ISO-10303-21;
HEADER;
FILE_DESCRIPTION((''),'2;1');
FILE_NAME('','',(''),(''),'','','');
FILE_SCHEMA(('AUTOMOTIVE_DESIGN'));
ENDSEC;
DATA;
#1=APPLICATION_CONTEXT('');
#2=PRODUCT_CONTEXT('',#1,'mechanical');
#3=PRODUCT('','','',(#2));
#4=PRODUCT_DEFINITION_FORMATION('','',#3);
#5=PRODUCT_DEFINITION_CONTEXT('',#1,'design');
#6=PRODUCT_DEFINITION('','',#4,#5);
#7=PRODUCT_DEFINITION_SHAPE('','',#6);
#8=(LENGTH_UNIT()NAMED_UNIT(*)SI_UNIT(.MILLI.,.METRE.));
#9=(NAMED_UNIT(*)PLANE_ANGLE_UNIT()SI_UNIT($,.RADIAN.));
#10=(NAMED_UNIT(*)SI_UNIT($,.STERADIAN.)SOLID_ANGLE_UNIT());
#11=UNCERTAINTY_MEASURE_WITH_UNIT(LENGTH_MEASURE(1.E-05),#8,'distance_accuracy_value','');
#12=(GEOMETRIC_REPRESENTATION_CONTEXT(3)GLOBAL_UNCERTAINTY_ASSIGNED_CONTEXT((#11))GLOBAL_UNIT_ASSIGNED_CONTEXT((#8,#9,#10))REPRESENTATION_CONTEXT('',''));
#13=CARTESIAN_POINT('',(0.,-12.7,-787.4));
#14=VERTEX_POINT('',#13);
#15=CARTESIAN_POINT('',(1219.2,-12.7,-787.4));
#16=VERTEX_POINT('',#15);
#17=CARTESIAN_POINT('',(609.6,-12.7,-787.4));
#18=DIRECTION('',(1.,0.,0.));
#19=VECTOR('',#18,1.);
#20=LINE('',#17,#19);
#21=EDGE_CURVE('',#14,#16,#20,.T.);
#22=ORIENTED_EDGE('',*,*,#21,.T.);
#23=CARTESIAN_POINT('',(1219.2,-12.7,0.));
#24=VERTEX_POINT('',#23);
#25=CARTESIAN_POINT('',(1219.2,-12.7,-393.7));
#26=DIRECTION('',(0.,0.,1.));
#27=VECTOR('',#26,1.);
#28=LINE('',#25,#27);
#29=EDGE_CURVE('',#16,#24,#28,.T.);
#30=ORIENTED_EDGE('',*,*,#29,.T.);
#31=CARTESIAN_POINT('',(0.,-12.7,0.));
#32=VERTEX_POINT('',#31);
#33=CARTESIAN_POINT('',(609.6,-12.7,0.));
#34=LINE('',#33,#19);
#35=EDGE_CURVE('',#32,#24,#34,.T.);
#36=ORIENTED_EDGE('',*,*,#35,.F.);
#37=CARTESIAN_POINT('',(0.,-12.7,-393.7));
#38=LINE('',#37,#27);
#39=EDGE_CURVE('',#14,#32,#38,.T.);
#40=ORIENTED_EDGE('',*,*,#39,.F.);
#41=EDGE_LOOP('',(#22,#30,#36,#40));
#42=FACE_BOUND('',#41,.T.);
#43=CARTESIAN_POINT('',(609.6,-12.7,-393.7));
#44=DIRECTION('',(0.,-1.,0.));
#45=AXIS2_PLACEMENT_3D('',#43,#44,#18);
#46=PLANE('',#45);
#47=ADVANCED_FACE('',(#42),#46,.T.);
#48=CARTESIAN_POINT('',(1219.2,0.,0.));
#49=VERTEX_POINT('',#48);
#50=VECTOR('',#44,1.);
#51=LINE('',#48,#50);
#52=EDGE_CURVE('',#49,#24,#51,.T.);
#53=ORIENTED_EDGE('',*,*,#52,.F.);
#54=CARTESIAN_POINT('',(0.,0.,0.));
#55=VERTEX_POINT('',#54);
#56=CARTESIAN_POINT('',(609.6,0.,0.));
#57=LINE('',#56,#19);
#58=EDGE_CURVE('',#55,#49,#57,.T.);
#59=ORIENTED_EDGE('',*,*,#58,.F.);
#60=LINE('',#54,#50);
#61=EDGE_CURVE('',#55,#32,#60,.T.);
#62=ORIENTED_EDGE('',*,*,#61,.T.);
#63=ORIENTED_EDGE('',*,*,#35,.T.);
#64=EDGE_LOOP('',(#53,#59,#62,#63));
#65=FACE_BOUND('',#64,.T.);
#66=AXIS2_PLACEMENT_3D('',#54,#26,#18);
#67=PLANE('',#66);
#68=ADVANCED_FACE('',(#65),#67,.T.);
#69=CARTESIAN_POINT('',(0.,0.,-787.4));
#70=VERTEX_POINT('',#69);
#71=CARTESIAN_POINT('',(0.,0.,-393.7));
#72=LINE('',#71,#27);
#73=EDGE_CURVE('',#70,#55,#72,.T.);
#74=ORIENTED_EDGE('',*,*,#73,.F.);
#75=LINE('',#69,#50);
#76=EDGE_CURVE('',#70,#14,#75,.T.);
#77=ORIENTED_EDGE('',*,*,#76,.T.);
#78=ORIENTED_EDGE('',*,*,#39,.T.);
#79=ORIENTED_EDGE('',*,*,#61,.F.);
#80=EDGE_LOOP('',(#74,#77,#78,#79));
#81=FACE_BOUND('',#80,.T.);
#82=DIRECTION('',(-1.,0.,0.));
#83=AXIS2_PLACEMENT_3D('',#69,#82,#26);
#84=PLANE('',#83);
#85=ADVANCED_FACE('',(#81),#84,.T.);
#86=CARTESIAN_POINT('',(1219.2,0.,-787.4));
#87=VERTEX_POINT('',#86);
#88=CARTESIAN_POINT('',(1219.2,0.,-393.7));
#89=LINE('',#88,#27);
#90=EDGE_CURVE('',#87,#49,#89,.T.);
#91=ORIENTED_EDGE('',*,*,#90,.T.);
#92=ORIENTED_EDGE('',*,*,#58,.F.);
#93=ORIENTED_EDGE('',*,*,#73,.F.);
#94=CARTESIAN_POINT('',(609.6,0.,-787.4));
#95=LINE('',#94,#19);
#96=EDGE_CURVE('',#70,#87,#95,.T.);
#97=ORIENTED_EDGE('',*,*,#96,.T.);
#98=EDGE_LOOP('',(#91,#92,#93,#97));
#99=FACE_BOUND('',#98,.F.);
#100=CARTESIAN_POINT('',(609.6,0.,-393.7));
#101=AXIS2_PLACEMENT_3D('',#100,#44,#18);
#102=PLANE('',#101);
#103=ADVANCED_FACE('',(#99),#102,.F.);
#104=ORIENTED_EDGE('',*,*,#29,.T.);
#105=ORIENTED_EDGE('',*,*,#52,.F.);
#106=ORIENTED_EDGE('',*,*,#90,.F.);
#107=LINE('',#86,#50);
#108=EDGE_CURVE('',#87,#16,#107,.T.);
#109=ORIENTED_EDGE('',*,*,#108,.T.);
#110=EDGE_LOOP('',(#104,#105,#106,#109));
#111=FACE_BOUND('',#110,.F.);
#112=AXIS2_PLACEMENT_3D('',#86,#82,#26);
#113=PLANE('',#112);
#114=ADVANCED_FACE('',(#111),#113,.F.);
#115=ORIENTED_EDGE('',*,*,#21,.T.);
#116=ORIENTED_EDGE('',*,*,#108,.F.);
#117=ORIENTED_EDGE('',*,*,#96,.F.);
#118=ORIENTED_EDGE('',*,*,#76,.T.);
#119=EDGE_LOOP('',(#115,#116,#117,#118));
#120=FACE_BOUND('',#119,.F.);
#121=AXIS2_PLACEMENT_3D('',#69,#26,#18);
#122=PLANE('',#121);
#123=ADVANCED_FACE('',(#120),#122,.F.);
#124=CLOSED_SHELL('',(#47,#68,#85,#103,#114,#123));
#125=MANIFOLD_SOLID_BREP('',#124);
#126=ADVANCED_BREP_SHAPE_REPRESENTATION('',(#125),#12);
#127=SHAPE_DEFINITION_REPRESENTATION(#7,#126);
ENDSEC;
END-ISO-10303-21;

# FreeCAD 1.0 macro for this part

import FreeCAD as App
import Part
import Sketcher
from FreeCAD import Vector
Q = App.Units.Quantity


def add_polygon(sketch, points):
    """Adds a closed chain of lines whose ends are joined by coincident constraints."""
    first, n = sketch.GeometryCount, len(points)
    for a, b in zip(points, points[1:] + points[:1]):
        sketch.addGeometry(Part.LineSegment(App.Vector(*a, 0), App.Vector(*b, 0)), False)
    for i in range(n):
        sketch.addConstraint(Sketcher.Constraint("Coincident", first + i, 2, first + (i + 1) % n, 1))

doc = App.newDocument("Part")
body = doc.addObject("PartDesign::Body", "Body")

sketch1 = body.newObject("Sketcher::SketchObject", "Sketch")
sketch1.AttachmentSupport = (doc.getObject("XZ_Plane"), [""])
sketch1.MapMode = "FlatFace"
add_polygon(sketch1, [(0, 0), (0, -787), (1219, -787), (1219, 0)])
sketch1.addConstraint([
    Sketcher.Constraint("Vertical", 0),
    Sketcher.Constraint("Horizontal", 1),
    Sketcher.Constraint("Vertical", 2),
    Sketcher.Constraint("Horizontal", 3),
    Sketcher.Constraint("Coincident", 3, 2, -1, 1),
    Sketcher.Constraint("DistanceX", 1, 1, 1, 2, Q("48 in")),
    Sketcher.Constraint("DistanceY", 0, 2, 0, 1, Q("31 in")),
])
pad1 = body.newObject("PartDesign::Pad", "Pad")
pad1.Profile = sketch1
pad1.Length = Q("0.5 in")
body2 = doc.addObject("PartDesign::Body", "Body001")
doc.recompute()

body2.BaseFeature = body
doc.recompute()
body.Visibility = False

doc.recompute()
